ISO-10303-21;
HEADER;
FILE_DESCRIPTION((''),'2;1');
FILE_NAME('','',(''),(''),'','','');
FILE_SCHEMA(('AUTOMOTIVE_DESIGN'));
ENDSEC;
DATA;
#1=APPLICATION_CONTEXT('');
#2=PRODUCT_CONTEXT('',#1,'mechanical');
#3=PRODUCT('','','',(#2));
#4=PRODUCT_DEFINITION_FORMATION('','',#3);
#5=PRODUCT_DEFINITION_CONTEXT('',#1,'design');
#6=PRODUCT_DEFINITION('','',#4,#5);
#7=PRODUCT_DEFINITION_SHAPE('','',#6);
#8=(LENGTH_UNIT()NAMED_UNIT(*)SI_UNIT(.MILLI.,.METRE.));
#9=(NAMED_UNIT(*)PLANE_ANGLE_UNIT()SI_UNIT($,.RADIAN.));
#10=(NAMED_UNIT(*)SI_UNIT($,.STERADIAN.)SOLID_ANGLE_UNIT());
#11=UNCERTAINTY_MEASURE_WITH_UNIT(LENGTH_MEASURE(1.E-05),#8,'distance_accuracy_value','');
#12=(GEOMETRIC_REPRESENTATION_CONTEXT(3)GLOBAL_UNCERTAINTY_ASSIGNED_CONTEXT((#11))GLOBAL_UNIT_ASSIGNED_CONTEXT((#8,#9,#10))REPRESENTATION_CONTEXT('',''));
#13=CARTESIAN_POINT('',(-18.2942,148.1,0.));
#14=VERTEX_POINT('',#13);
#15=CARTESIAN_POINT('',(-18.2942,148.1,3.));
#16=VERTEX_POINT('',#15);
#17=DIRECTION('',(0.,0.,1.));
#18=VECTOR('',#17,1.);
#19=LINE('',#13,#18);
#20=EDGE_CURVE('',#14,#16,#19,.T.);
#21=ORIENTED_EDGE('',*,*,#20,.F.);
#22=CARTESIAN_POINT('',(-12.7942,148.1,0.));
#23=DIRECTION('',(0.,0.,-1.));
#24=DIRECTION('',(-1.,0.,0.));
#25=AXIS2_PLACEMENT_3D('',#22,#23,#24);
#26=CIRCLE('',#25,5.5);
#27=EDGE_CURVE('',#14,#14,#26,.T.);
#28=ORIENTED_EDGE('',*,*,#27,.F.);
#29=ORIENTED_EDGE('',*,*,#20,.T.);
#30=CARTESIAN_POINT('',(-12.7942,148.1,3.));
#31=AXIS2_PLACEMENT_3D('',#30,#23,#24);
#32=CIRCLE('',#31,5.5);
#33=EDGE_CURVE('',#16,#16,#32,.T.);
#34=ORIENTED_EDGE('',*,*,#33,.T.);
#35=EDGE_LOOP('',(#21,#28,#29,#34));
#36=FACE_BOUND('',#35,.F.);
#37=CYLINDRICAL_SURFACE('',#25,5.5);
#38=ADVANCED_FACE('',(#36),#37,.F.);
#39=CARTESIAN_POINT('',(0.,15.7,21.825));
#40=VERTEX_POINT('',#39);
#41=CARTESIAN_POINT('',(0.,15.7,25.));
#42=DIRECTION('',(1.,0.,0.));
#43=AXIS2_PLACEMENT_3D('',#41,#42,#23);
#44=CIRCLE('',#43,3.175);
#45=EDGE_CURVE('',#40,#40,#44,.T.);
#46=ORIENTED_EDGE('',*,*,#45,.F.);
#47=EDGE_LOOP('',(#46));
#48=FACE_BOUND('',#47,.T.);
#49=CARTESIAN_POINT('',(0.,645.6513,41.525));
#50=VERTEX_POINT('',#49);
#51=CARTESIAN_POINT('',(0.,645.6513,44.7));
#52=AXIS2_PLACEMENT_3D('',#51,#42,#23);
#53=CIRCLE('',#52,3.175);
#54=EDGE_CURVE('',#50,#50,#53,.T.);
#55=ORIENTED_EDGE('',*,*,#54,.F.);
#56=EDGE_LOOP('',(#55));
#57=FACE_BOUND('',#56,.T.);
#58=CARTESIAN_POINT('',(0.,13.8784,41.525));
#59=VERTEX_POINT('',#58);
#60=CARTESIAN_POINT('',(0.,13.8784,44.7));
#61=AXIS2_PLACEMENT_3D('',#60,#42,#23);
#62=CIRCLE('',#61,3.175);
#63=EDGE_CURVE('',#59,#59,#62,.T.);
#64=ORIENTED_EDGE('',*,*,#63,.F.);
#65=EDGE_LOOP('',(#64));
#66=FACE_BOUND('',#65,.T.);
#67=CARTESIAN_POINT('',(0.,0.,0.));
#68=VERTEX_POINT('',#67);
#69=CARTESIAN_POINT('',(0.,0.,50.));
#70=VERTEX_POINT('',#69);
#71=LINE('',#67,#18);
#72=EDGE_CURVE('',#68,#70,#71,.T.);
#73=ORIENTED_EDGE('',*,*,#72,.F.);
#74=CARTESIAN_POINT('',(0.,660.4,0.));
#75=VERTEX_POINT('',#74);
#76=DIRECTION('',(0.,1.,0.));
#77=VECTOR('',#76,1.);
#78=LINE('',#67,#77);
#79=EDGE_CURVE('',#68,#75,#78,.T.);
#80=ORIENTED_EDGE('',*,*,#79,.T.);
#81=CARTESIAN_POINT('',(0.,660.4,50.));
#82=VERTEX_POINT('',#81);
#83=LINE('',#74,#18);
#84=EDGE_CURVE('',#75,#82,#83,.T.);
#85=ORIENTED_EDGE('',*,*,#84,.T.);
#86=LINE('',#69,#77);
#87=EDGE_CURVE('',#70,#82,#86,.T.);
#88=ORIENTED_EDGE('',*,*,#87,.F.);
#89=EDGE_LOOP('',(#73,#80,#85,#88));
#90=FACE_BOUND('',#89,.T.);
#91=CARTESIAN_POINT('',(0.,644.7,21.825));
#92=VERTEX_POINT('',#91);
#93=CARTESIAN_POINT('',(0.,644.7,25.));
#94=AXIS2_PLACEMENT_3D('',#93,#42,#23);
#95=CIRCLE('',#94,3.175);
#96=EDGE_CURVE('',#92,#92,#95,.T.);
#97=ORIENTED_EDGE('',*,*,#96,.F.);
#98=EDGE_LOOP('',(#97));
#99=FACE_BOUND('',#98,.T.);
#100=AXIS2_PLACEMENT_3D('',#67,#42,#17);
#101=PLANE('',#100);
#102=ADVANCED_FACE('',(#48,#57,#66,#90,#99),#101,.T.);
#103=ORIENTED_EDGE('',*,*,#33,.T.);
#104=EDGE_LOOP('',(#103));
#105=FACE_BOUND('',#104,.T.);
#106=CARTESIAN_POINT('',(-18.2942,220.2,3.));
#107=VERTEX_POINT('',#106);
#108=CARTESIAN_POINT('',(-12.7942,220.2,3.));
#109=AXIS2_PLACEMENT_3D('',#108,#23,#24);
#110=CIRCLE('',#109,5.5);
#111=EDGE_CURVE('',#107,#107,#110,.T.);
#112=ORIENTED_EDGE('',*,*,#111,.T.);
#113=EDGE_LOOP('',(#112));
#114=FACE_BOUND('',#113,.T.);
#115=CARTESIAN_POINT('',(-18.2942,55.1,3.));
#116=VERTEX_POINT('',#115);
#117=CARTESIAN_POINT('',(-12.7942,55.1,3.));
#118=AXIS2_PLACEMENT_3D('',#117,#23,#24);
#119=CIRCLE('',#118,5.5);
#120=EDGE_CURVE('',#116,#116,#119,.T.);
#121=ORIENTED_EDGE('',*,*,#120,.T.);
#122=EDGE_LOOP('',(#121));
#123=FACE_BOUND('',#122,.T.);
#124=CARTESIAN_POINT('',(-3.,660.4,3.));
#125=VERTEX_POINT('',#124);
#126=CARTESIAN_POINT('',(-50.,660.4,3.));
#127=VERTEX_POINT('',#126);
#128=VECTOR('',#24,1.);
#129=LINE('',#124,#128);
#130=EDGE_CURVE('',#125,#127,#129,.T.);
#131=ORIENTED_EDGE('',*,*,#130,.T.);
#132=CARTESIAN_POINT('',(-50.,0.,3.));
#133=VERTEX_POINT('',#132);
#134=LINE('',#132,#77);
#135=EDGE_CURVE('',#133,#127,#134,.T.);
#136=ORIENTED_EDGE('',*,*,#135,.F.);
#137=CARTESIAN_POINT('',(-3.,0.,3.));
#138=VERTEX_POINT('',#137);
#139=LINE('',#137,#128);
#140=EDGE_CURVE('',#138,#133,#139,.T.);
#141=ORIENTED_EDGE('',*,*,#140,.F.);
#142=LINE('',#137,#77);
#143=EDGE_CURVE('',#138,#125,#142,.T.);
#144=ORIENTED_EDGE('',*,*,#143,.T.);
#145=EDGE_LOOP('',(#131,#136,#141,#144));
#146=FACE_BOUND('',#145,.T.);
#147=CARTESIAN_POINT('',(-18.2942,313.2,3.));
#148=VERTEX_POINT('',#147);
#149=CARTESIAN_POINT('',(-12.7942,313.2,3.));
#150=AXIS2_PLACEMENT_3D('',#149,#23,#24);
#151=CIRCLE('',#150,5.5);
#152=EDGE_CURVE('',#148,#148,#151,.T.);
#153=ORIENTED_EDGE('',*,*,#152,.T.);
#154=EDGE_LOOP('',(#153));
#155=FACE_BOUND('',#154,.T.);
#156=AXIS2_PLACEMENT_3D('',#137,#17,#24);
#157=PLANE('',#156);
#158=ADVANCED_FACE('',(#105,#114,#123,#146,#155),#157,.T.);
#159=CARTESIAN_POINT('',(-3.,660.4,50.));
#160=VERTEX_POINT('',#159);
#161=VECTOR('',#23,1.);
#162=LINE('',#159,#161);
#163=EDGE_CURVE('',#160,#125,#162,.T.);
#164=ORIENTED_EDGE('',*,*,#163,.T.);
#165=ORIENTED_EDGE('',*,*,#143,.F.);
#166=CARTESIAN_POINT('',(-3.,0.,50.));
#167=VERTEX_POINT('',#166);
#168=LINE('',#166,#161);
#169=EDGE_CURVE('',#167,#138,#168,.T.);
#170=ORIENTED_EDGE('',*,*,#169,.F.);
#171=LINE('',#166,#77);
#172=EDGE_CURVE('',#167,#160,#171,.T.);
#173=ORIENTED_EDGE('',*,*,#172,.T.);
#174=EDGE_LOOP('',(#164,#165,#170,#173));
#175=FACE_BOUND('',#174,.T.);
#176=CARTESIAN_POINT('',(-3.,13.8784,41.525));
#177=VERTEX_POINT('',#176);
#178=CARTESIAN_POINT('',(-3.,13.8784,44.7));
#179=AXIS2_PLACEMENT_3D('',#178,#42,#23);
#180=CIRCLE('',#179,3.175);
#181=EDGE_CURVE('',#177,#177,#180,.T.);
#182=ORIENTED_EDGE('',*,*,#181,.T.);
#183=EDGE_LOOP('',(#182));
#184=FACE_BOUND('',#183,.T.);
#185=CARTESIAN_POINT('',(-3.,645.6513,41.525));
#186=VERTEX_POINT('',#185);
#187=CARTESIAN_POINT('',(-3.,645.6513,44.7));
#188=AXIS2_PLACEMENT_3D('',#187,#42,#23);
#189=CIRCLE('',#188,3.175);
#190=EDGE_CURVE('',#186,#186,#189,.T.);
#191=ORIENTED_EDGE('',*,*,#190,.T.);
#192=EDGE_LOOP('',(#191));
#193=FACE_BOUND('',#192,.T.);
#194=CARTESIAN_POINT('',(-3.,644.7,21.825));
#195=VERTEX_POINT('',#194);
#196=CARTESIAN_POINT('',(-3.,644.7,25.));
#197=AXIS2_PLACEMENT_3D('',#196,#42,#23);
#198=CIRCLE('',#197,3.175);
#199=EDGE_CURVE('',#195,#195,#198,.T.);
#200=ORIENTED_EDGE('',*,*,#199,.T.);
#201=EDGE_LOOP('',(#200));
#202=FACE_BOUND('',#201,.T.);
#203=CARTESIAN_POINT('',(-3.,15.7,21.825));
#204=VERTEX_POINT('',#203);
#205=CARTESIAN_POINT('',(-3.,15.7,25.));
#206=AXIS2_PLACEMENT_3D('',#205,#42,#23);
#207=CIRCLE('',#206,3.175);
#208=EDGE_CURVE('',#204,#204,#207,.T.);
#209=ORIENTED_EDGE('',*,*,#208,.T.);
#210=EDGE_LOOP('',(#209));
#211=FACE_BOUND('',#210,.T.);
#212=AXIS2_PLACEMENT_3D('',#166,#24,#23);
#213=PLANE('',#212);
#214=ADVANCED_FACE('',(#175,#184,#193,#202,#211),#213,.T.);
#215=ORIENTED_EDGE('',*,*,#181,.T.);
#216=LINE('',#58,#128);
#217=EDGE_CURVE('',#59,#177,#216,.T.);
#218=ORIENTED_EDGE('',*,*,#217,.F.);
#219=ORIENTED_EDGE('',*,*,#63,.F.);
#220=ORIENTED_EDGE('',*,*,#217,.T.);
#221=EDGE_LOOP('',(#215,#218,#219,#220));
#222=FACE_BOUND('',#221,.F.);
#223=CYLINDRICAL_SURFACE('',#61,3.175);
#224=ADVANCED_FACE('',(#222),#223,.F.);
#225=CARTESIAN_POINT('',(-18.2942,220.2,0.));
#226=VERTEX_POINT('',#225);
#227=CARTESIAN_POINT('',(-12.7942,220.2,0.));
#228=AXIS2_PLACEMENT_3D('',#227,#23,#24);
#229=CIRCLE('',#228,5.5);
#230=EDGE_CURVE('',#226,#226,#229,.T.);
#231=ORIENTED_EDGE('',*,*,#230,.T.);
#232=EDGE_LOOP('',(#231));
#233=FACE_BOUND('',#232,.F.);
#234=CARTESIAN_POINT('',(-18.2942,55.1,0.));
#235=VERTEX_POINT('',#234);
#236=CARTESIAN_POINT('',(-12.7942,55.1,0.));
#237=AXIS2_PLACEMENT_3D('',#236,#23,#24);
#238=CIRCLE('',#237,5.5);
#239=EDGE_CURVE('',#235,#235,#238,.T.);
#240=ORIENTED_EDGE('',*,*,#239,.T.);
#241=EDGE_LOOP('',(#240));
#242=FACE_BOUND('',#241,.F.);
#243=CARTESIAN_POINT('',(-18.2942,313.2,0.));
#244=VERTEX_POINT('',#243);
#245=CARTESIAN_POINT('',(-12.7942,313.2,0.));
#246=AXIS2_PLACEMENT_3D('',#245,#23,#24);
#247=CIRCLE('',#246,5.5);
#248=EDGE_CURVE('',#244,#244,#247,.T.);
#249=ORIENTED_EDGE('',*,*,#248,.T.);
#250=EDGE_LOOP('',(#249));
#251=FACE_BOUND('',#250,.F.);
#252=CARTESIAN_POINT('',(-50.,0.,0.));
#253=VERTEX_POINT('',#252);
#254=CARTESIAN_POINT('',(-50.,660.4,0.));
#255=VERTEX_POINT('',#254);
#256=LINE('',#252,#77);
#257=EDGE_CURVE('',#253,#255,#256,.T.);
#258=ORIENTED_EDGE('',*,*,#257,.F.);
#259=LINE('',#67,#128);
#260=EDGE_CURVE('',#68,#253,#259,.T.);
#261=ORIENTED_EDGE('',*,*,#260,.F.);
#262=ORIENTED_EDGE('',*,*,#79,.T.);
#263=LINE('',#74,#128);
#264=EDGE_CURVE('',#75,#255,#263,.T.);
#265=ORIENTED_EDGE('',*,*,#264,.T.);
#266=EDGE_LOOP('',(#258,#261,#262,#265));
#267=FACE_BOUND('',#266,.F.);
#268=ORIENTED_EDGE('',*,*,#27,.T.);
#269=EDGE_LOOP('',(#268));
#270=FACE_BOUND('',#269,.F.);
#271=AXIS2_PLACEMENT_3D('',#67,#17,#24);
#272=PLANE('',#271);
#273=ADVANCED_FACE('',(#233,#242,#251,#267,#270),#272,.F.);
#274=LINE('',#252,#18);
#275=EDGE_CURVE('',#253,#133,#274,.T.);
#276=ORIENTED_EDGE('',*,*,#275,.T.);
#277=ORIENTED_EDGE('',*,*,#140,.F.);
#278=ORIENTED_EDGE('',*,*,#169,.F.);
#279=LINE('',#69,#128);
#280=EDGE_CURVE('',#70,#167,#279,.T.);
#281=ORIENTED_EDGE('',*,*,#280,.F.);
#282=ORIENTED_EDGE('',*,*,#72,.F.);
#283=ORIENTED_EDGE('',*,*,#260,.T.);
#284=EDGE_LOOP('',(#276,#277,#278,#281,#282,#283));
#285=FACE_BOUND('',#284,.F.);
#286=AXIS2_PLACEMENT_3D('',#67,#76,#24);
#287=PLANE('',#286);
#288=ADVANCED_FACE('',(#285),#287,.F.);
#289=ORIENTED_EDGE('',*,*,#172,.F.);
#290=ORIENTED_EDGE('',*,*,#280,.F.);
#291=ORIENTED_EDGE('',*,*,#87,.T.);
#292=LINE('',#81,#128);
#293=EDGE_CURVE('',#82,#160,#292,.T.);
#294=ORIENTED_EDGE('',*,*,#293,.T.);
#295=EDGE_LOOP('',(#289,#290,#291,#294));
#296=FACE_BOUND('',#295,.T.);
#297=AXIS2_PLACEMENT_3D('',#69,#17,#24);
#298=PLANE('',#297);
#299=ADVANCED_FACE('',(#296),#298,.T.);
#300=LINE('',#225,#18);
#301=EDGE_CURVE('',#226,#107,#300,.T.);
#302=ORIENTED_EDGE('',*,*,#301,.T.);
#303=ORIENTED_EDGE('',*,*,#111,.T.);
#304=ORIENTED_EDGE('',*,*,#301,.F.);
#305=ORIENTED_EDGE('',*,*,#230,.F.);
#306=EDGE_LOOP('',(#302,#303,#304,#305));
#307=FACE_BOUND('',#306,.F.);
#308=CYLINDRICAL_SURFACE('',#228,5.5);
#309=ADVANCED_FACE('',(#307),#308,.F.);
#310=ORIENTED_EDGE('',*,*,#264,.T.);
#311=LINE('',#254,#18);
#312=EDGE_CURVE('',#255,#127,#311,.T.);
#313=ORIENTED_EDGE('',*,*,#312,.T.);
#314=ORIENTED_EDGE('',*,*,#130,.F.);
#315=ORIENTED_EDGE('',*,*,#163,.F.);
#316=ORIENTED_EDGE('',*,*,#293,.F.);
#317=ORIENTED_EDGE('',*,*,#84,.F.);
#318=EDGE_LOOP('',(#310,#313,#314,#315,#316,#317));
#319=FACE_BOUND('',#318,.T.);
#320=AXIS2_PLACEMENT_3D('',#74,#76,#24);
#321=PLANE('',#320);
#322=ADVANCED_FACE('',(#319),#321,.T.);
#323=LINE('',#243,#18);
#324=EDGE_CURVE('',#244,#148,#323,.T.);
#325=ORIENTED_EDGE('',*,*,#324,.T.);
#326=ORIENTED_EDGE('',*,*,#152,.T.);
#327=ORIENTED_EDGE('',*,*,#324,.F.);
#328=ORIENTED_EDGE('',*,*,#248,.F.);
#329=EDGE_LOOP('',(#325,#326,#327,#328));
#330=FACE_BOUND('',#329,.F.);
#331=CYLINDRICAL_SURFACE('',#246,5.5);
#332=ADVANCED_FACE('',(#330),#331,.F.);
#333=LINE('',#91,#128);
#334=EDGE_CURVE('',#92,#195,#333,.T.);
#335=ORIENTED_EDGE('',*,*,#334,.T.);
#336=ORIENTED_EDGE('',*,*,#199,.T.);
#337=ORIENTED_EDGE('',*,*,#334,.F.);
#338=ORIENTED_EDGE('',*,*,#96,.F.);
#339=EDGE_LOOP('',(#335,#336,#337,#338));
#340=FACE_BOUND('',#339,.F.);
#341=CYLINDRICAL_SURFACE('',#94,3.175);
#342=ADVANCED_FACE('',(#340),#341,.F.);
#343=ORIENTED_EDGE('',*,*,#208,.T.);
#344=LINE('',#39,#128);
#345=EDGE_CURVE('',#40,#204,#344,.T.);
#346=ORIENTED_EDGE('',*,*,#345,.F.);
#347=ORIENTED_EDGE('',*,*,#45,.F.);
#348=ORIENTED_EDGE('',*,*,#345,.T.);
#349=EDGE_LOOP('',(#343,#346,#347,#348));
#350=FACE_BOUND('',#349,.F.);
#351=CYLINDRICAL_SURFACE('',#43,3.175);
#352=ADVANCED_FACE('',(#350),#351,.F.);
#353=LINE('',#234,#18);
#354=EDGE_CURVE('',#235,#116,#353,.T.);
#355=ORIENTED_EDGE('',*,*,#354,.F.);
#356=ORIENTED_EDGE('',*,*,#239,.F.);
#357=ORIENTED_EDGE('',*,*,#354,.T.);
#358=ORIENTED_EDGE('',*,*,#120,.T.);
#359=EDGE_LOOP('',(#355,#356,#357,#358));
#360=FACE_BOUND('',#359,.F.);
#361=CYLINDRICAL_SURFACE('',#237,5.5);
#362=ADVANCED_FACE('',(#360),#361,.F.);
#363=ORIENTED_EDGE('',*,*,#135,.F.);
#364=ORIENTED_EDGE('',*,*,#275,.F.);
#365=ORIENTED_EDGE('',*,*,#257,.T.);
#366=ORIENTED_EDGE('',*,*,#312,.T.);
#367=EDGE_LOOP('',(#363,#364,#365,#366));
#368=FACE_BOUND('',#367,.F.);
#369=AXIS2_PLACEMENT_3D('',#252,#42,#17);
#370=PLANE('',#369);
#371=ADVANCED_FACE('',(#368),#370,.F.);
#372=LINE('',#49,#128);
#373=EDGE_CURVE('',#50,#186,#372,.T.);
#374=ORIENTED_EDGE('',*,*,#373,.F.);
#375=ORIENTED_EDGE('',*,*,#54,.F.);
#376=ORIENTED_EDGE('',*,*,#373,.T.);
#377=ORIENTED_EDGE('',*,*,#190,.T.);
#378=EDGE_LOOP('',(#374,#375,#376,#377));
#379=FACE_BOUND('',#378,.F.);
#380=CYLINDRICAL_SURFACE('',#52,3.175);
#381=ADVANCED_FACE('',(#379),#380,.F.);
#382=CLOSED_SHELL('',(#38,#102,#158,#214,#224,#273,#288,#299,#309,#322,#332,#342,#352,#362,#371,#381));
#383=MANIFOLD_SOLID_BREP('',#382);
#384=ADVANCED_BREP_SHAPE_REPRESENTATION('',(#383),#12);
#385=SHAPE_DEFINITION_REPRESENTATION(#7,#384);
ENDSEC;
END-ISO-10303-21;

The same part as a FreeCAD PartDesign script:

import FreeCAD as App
import Part
import Sketcher

V = App.Vector
Q = App.Units.Quantity


def add_polygon(sketch, points):
    """Adds a closed chain of lines whose ends are joined by coincident constraints."""
    first, n = sketch.GeometryCount, len(points)
    for a, b in zip(points, points[1:] + points[:1]):
        sketch.addGeometry(Part.LineSegment(App.Vector(*a, 0), App.Vector(*b, 0)), False)
    for i in range(n):
        sketch.addConstraint(Sketcher.Constraint("Coincident", first + i, 2, first + (i + 1) % n, 1))

doc = App.newDocument("Part")
body = doc.addObject("PartDesign::Body", "Body")

# Sketch on XZ plane
sketch1 = body.newObject("Sketcher::SketchObject", "Sketch")
sketch1.AttachmentSupport = (doc.getObject("XZ_Plane"), [""])
sketch1.MapMode = "FlatFace"
add_polygon(sketch1, [(0, 50), (0, 0), (-50, 0), (-50, 3), (-3, 3), (-3, 50)])  # lines 0-5
sketch1.addConstraint([
    Sketcher.Constraint("Vertical", 0),
    Sketcher.Constraint("Horizontal", 1),
    Sketcher.Constraint("Vertical", 2),
    Sketcher.Constraint("Horizontal", 3),
    Sketcher.Constraint("Vertical", 4),
    Sketcher.Constraint("Horizontal", 5),
    Sketcher.Constraint("Coincident", 0, 2, -1, 1),
    Sketcher.Constraint("Equal", 1, 0),
    Sketcher.Constraint("Equal", 5, 2),
    Sketcher.Constraint("DistanceX", 1, 2, 1, 1, Q("1.9685 in")),
    Sketcher.Constraint("DistanceX", 5, 1, 5, 2, Q("0.1181 in")),
])
pad1 = body.newObject("PartDesign::Pad", "Pad")
pad1.Profile = sketch1
pad1.Length = Q("26 in")
pad1.Reversed = True

# Sketch on YZ plane
sketch2 = body.newObject("Sketcher::SketchObject", "Sketch001")
sketch2.AttachmentSupport = (doc.getObject("YZ_Plane"), [""])
sketch2.MapMode = "FlatFace"
sketch2.addGeometry([
    Part.Circle(V(15.7, 25, 0), V(0, 0, 1), 3.2),
    Part.Circle(V(644.7, 25, 0), V(0, 0, 1), 3.2),
], False)
sketch2.addConstraint([
    Sketcher.Constraint("Equal", 0, 1),
    Sketcher.Constraint("Horizontal", 0, 3, 1, 3),
    Sketcher.Constraint("Diameter", 0, Q("0.25 in")),
    Sketcher.Constraint("DistanceX", -1, 1, 0, 3, Q("0.6181 in")),
    Sketcher.Constraint("DistanceX", -1, 1, 1, 3, Q("25.3819 in")),
    Sketcher.Constraint("DistanceY", -1, 1, 0, 3, Q("25 mm")),
])
pocket1 = body.newObject("PartDesign::Pocket", "Pocket")
pocket1.Profile = sketch2
pocket1.Length = Q("1 in")

# Sketch on YZ plane
sketch3 = body.newObject("Sketcher::SketchObject", "Sketch002")
sketch3.AttachmentSupport = (doc.getObject("YZ_Plane"), [""])
sketch3.MapMode = "FlatFace"
sketch3.addGeometry(Part.Circle(V(645.7, 44.7, 0), V(0, 0, 1), 3.2), False)
sketch3.addConstraint([
    Sketcher.Constraint("Diameter", 0, Q("0.25 in")),
    Sketcher.Constraint("DistanceX", -1, 1, 0, 3, Q("645.6513 mm")),
    Sketcher.Constraint("DistanceY", -1, 1, 0, 3, Q("44.7 mm")),
])
pocket2 = body.newObject("PartDesign::Pocket", "Pocket001")
pocket2.Profile = sketch3
pocket2.Length = Q("1 in")

# Sketch on YZ plane
sketch4 = body.newObject("Sketcher::SketchObject", "Sketch003")
sketch4.AttachmentSupport = (doc.getObject("YZ_Plane"), [""])
sketch4.MapMode = "FlatFace"
sketch4.addGeometry(Part.Circle(V(13.9, 44.7, 0), V(0, 0, 1), 3.2), False)
sketch4.addConstraint([
    Sketcher.Constraint("Diameter", 0, Q("0.25 in")),
    Sketcher.Constraint("DistanceX", -1, 1, 0, 3, Q("0.5464 in")),
    Sketcher.Constraint("DistanceY", -1, 1, 0, 3, Q("44.7 mm")),
])
pocket3 = body.newObject("PartDesign::Pocket", "Pocket002")
pocket3.Profile = sketch4
pocket3.Length = Q("1 in")

# Sketch on XY plane
sketch5 = body.newObject("Sketcher::SketchObject", "Sketch004")
sketch5.AttachmentSupport = (doc.getObject("XY_Plane"), [""])
sketch5.MapMode = "FlatFace"
sketch5.addGeometry([
    Part.Circle(V(-13, 55, 0), V(0, 0, 1), 6),
    Part.Circle(V(-13, 148, 0), V(0, 0, 1), 6),
    Part.Circle(V(-13, 220, 0), V(0, 0, 1), 6),
    Part.Circle(V(-13, 313, 0), V(0, 0, 1), 6),
], False)
sketch5.addConstraint([
    Sketcher.Constraint("Equal", 0, 1),
    Sketcher.Constraint("Equal", 1, 2),
    Sketcher.Constraint("Equal", 2, 3),
    Sketcher.Constraint("Vertical", 0, 3, 1, 3),
    Sketcher.Constraint("Vertical", 1, 3, 2, 3),
    Sketcher.Constraint("Vertical", 2, 3, 3, 3),
    Sketcher.Constraint("DistanceY", 0, 3, 2, 3, Q("6.5 in")),
    Sketcher.Constraint("DistanceY", 1, 3, 3, 3, Q("6.5 in")),
    Sketcher.Constraint("Diameter", 0, Q("11 mm")),
    Sketcher.Constraint("DistanceX", 0, 3, -1, 1, Q("0.5037 in")),
    Sketcher.Constraint("DistanceY", -1, 1, 0, 3, Q("2.1693 in")),
    Sketcher.Constraint("DistanceY", -1, 1, 1, 3, Q("5.8307 in")),
])
pocket4 = body.newObject("PartDesign::Pocket", "Pocket003")
pocket4.Profile = sketch5
pocket4.Length = Q("1 in")
pocket4.Reversed = True

doc.recompute()
